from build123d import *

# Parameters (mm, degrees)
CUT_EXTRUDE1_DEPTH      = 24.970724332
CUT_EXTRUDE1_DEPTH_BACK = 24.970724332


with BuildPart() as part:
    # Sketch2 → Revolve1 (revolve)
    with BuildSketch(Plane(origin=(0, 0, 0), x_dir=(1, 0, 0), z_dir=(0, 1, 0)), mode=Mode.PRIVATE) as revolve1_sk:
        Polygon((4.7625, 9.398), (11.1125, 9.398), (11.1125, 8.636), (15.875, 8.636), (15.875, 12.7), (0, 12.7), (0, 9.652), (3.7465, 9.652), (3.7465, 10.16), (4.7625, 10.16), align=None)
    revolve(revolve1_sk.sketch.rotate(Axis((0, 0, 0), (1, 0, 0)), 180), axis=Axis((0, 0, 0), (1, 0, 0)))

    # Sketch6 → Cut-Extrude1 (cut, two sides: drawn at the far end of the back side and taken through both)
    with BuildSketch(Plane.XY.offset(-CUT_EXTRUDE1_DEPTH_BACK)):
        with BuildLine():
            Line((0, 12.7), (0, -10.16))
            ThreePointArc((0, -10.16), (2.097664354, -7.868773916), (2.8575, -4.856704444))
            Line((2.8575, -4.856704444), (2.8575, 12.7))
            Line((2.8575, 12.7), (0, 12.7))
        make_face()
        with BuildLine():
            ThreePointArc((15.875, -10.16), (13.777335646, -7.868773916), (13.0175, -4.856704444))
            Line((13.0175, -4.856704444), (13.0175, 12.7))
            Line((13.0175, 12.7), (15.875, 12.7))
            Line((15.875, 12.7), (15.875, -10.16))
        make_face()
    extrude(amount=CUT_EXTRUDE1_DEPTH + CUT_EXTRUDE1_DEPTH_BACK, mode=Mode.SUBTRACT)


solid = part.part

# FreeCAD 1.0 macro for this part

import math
import FreeCAD as App
import Part
import Sketcher
from FreeCAD import Vector
Q = App.Units.Quantity


def add_polygon(sketch, points):
    """Adds a closed chain of lines whose ends are joined by coincident constraints."""
    first, n = sketch.GeometryCount, len(points)
    for a, b in zip(points, points[1:] + points[:1]):
        sketch.addGeometry(Part.LineSegment(App.Vector(*a, 0), App.Vector(*b, 0)), False)
    for i in range(n):
        sketch.addConstraint(Sketcher.Constraint("Coincident", first + i, 2, first + (i + 1) % n, 1))

doc = App.newDocument("Part")
params = doc.addObject("Spreadsheet::Sheet", "Params")
for row, (alias, value) in enumerate([
    ("sketch1_width", "0.25 in"),
    ("sketch1_width2", "0.04 in"),
    ("sketch1_height", "0.03 in"),
    ("sketch1_height2", "0.16 in"),
    ("sketch1_height3", "0.12 in"),
    ("revolution_angle", "360 deg"),
    ("sketch2_radius", "0.25 in"),
    ("sketch2_height", "0.9 in"),
], start=1):
    params.set(f"A{row}", alias)
    params.set(f"B{row}", "=" + value)
    params.setAlias(f"B{row}", alias)

body = doc.addObject("PartDesign::Body", "Body")

# Sketch on XZ plane
sketch1 = body.newObject("Sketcher::SketchObject", "Sketch")
sketch1.AttachmentSupport = (doc.getObject("XZ_Plane"), [""])
sketch1.MapMode = "FlatFace"
add_polygon(sketch1, [(4.7625, -9.398), (11.1125, -9.398), (11.1125, -8.636), (15.875, -8.636), (15.875, -12.7), (0, -12.7), (0, -9.652), (3.7465, -9.652), (3.7465, -10.16), (4.7625, -10.16)])  # lines 0-9
sketch1.addConstraint([
    Sketcher.Constraint("Horizontal", 0),
    Sketcher.Constraint("Vertical", 1),
    Sketcher.Constraint("Horizontal", 2),
    Sketcher.Constraint("Vertical", 3),
    Sketcher.Constraint("Horizontal", 4),
    Sketcher.Constraint("Vertical", 5),
    Sketcher.Constraint("Horizontal", 6),
    Sketcher.Constraint("Vertical", 7),
    Sketcher.Constraint("Horizontal", 8),
    Sketcher.Constraint("Vertical", 9),
    Sketcher.Constraint("PointOnObject", 4, 2, -2),
    Sketcher.Constraint("Equal", 1, 9),
    Sketcher.Constraint("DistanceX", 0, 1, 0, 2, Q("0.25 in")),
    Sketcher.Constraint("DistanceX", 8, 1, 8, 2, Q("0.04 in")),
    Sketcher.Constraint("DistanceY", 1, 1, 1, 2, Q("0.03 in")),
    Sketcher.Constraint("DistanceY", 3, 2, 3, 1, Q("0.16 in")),
    Sketcher.Constraint("DistanceY", 5, 1, 5, 2, Q("0.12 in")),
    Sketcher.Constraint("DistanceY", 3, 2, -1, 1, Q("0.5 in")),
    Sketcher.Constraint("DistanceX", 2, 1, 2, 2, Q("0.1875 in")),
    Sketcher.Constraint("DistanceX", 4, 2, 4, 1, Q("0.625 in")),
])
sketch1.setExpression("Constraints[22]", "Params.sketch1_width")
sketch1.setExpression("Constraints[23]", "Params.sketch1_width2")
sketch1.setExpression("Constraints[24]", "Params.sketch1_height")
sketch1.setExpression("Constraints[25]", "Params.sketch1_height2")
sketch1.setExpression("Constraints[26]", "Params.sketch1_height3")
revolution = body.newObject("PartDesign::Revolution", "Revolution")
revolution.Profile = sketch1
revolution.ReferenceAxis = (sketch1, ["H_Axis"])
revolution.setExpression("Angle", "Params.revolution_angle")

# Sketch on XY plane
sketch2 = body.newObject("Sketcher::SketchObject", "Sketch001")
sketch2.AttachmentSupport = (doc.getObject("XY_Plane"), [""])
sketch2.MapMode = "FlatFace"
sketch2.addGeometry([
    Part.LineSegment(Vector(0, 12.7, 0), Vector(0, -10.16, 0)),  # 0
    Part.ArcOfCircle(Part.Circle(Vector(-3.4925, -4.856704, 0), Vector(0, 0, 1), 6.35), math.radians(-56.632987), math.radians(0)),  # 1
    Part.LineSegment(Vector(2.8575, -4.856704, 0), Vector(2.8575, 12.7, 0)),  # 2
    Part.LineSegment(Vector(2.8575, 12.7, 0), Vector(0, 12.7, 0)),  # 3
    Part.ArcOfCircle(Part.Circle(Vector(19.3675, -4.856704, 0), Vector(0, 0, 1), 6.35), math.radians(180), math.radians(236.632987)),  # 4
    Part.LineSegment(Vector(15.875, -10.16, 0), Vector(15.875, 12.7, 0)),  # 5
    Part.LineSegment(Vector(15.875, 12.7, 0), Vector(13.0175, 12.7, 0)),  # 6
    Part.LineSegment(Vector(13.0175, 12.7, 0), Vector(13.0175, -4.856704, 0)),  # 7
], False)
sketch2.addConstraint([
    Sketcher.Constraint("Coincident", 0, 2, 1, 1),
    Sketcher.Constraint("Tangent", 1, 2, 2, 1),
    Sketcher.Constraint("Coincident", 2, 2, 3, 1),
    Sketcher.Constraint("Coincident", 3, 2, 0, 1),
    Sketcher.Constraint("Coincident", 4, 2, 5, 1),
    Sketcher.Constraint("Coincident", 5, 2, 6, 1),
    Sketcher.Constraint("Coincident", 6, 2, 7, 1),
    Sketcher.Constraint("Tangent", 7, 2, 4, 1),
    Sketcher.Constraint("Vertical", 0),
    Sketcher.Constraint("Vertical", 2),
    Sketcher.Constraint("Horizontal", 3),
    Sketcher.Constraint("Vertical", 5),
    Sketcher.Constraint("Horizontal", 6),
    Sketcher.Constraint("Vertical", 7),
    Sketcher.Constraint("Equal", 1, 4),
    Sketcher.Constraint("PointOnObject", 0, 2, -2),
    Sketcher.Constraint("Horizontal", 1, 3, 4, 3),
    Sketcher.Constraint("Horizontal", 0, 2, 4, 2),
    Sketcher.Constraint("Horizontal", 3, 2, 5, 2),
    Sketcher.Constraint("Radius", 1, Q("0.25 in")),
    Sketcher.Constraint("DistanceY", 0, 2, 0, 1, Q("0.9 in")),
    Sketcher.Constraint("DistanceY", 0, 2, -1, 1, Q("0.4 in")),
    Sketcher.Constraint("DistanceX", 1, 3, 4, 3, Q("0.9 in")),
    Sketcher.Constraint("DistanceX", 3, 2, 3, 1, Q("0.1125 in")),
])
sketch2.setExpression("Constraints[19]", "Params.sketch2_radius")
sketch2.setExpression("Constraints[20]", "Params.sketch2_height")
pocket1 = body.newObject("PartDesign::Pocket", "Pocket")
pocket1.Profile = sketch2
pocket1.Type = "ThroughAll"
pocket1.Midplane = True

doc.recompute()
